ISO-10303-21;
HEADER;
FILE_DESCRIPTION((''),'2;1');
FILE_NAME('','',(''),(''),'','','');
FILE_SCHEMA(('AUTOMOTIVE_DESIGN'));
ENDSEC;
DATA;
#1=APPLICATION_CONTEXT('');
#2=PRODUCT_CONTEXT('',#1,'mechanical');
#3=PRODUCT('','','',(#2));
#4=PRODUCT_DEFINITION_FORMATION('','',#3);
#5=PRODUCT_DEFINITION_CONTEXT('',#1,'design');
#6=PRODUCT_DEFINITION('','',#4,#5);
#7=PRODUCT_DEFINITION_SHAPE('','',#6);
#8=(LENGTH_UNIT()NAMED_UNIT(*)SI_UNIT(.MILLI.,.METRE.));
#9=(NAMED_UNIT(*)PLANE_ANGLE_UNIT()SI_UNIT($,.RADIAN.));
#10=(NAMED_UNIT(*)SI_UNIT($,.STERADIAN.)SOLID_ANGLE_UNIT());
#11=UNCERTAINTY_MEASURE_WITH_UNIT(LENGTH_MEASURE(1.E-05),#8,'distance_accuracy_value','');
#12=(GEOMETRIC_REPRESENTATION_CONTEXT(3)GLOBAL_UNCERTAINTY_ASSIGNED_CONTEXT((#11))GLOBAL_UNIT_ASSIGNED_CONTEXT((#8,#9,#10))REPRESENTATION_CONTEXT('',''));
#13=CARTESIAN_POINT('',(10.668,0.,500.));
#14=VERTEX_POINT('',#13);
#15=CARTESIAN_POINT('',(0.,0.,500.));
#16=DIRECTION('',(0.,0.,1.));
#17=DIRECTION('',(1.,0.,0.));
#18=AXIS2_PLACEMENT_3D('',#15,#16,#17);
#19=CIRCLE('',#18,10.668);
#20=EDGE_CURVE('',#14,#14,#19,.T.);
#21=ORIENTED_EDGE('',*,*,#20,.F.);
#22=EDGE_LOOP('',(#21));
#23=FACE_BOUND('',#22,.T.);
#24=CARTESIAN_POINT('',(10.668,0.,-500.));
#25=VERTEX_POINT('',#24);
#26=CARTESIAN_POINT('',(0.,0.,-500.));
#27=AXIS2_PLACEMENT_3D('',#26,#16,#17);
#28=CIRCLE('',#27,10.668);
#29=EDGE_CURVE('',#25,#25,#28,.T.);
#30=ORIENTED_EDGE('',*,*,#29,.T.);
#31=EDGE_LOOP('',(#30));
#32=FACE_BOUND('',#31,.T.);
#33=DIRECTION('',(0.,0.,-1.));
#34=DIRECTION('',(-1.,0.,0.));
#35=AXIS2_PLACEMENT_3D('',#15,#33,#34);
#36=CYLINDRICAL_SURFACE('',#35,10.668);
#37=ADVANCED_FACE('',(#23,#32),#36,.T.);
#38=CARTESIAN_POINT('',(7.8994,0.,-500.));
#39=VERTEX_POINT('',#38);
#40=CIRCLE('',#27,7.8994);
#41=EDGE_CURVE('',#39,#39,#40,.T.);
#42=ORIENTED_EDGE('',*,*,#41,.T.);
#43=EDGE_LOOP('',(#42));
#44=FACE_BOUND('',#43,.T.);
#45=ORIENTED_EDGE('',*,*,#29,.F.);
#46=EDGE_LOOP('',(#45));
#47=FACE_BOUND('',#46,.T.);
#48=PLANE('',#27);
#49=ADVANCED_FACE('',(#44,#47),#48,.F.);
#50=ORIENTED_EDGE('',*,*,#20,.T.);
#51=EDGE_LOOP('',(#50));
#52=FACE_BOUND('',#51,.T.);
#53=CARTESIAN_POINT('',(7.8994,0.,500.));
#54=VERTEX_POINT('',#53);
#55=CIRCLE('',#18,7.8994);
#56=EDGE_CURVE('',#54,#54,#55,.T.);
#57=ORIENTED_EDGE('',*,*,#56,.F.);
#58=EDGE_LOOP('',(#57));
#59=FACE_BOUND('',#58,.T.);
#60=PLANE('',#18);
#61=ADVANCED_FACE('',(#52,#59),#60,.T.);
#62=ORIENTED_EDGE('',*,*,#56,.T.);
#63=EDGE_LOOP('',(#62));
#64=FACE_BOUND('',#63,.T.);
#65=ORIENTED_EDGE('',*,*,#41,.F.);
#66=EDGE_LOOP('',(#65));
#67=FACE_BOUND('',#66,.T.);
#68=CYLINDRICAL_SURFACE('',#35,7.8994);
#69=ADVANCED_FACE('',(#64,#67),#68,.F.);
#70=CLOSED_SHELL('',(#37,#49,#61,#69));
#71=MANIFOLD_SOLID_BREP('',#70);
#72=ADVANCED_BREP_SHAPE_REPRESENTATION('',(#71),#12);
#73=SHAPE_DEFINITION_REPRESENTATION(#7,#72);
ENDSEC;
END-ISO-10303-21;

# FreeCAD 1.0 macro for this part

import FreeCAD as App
import Part
import Sketcher
Q = App.Units.Quantity

doc = App.newDocument("Part")
body = doc.addObject("PartDesign::Body", "Body")

sketch1 = body.newObject("Sketcher::SketchObject", "Sketch")
sketch1.AttachmentSupport = (doc.getObject("XY_Plane"), [""])
sketch1.MapMode = "FlatFace"
sketch1.addGeometry(Part.Circle(App.Vector(0, 0, 0), App.Vector(0, 0, 1), 10.668), False)
sketch1.addGeometry(Part.Circle(App.Vector(0, 0, 0), App.Vector(0, 0, 1), 7.8994), False)
sketch1.addConstraint(Sketcher.Constraint("Coincident", 0, 3, -1, 1))
sketch1.addConstraint(Sketcher.Constraint("Coincident", 1, 3, -1, 1))
sketch1.addConstraint(Sketcher.Constraint("Diameter", 0, Q("0.84 in")))
sketch1.addConstraint(Sketcher.Constraint("Diameter", 1, Q("0.622 in")))
pad1 = body.newObject("PartDesign::Pad", "Pad")
pad1.Profile = sketch1
pad1.Length = 1000
pad1.Midplane = True

doc.recompute()
